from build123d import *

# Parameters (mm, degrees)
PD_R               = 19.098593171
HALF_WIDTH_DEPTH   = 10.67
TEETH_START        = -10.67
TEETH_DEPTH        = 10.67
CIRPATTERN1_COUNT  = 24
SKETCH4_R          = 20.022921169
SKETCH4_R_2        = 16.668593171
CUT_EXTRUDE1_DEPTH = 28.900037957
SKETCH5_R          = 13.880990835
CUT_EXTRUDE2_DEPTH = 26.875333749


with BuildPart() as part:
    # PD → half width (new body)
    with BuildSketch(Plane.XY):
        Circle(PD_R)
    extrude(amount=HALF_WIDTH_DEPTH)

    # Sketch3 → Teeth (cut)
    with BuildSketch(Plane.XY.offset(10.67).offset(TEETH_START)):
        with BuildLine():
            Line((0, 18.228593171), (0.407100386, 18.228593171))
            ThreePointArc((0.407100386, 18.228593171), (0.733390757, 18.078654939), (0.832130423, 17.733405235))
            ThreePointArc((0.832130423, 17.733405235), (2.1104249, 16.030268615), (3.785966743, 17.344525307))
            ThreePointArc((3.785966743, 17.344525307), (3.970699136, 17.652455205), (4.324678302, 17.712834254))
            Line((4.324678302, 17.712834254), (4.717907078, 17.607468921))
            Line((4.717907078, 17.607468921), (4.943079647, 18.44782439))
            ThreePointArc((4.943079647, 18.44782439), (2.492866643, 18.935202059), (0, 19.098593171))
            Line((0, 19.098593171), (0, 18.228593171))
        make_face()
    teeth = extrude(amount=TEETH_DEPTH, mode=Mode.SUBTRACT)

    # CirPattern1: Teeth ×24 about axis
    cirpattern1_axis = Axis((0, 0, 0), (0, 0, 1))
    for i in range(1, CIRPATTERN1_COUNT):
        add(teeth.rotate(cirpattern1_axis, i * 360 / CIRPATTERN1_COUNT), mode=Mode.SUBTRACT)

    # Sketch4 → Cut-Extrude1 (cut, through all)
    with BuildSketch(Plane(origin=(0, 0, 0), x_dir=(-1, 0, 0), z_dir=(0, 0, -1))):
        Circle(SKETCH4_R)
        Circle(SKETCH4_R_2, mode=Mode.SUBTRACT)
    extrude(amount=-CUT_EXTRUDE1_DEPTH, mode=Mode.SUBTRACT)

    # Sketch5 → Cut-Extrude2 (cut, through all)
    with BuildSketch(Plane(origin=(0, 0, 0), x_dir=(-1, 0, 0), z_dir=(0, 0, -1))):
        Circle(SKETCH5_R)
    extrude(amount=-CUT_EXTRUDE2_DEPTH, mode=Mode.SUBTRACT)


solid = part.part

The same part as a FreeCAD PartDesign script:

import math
import FreeCAD as App
import Part
import Sketcher

V = App.Vector
Q = App.Units.Quantity

doc = App.newDocument("Part")
body = doc.addObject("PartDesign::Body", "Body")

# Sketch on XY plane
sketch1 = body.newObject("Sketcher::SketchObject", "Sketch")
sketch1.AttachmentSupport = (doc.getObject("XY_Plane"), [""])
sketch1.MapMode = "FlatFace"
sketch1.addGeometry(Part.Circle(V(0, 0, 0), V(0, 0, 1), 19), False)
sketch1.addConstraint([
    Sketcher.Constraint("Coincident", 0, 3, -1, 1),
    Sketcher.Constraint("Diameter", 0, 38.197186),
])
pad1 = body.newObject("PartDesign::Pad", "Pad")
pad1.Profile = sketch1
pad1.Length = 10.67

# Sketch on XY plane
sketch2 = body.newObject("Sketcher::SketchObject", "Sketch001")
sketch2.AttachmentSupport = (doc.getObject("XY_Plane"), [""])
sketch2.MapMode = "FlatFace"
sketch2.addGeometry([
    Part.LineSegment(V(0, 18.23, 0), V(0.41, 18.23, 0)),  # 0
    Part.ArcOfCircle(Part.Circle(V(0.41, 17.8, 0), V(0, 0, 1), 0.43), math.radians(-9), math.radians(90)),  # 1
    Part.ArcOfCircle(Part.Circle(V(2.3, 17.51, 0), V(0, 0, 1), 1.49), math.radians(171), math.radians(354)),  # 2
    Part.ArcOfCircle(Part.Circle(V(4.21, 17.3, 0), V(0, 0, 1), 0.43), math.radians(75), math.radians(174)),  # 3
    Part.LineSegment(V(4.32, 17.71, 0), V(4.72, 17.61, 0)),  # 4
    Part.LineSegment(V(4.72, 17.61, 0), V(4.94, 18.45, 0)),  # 5
    Part.ArcOfCircle(Part.Circle(V(0, 0, 0), V(0, 0, 1), 19.1), math.radians(75), math.radians(90)),  # 6
    Part.LineSegment(V(0, 19.1, 0), V(0, 18.23, 0)),  # 7
], False)
sketch2.addConstraint([
    Sketcher.Constraint("Tangent", 0, 2, 1, 2),
    Sketcher.Constraint("Tangent", 1, 1, 2, 1),
    Sketcher.Constraint("Tangent", 2, 2, 3, 2),
    Sketcher.Constraint("Tangent", 3, 1, 4, 1),
    Sketcher.Constraint("Coincident", 4, 2, 5, 1),
    Sketcher.Constraint("Coincident", 5, 2, 6, 1),
    Sketcher.Constraint("Coincident", 6, 2, 7, 1),
    Sketcher.Constraint("Coincident", 7, 2, 0, 1),
    Sketcher.Constraint("Horizontal", 0),
    Sketcher.Constraint("Vertical", 7),
    Sketcher.Constraint("Coincident", 6, 3, -1, 1),
    Sketcher.Constraint("Equal", 1, 3),
    Sketcher.Constraint("PointOnObject", 6, 2, -2),
    Sketcher.Constraint("Perpendicular", 4, 5),
    Sketcher.Constraint("Angle", 4, Q("-15 deg")),
    Sketcher.Constraint("Radius", 1, 0.43),
    Sketcher.Constraint("Radius", 2, 1.49),
    Sketcher.Constraint("DistanceY", 7, 2, 7, 1, 0.87),
    Sketcher.Constraint("Distance", 5, 0.87),
    Sketcher.Constraint("DistanceX", 0, 1, 0, 2, 0.4071),
    Sketcher.Constraint("Radius", 6, 19.098593),
    Sketcher.Constraint("DistanceX", 2, 3, 4, 2, 2.412998),
    Sketcher.Constraint("Distance", 4, 0.4071),
])
pocket1 = body.newObject("PartDesign::Pocket", "Pocket")
pocket1.Profile = sketch2
pocket1.Length = 10.67
pocket1.Reversed = True
doc.recompute()

polarpattern = body.newObject("PartDesign::PolarPattern", "PolarPattern")
polarpattern.Originals = [pocket1]
polarpattern.Axis = (doc.getObject("Z_Axis"), [""])
polarpattern.Angle = 360
polarpattern.Occurrences = 24
body.Tip = polarpattern

# Sketch on XY plane
sketch3 = body.newObject("Sketcher::SketchObject", "Sketch002")
sketch3.AttachmentSupport = (doc.getObject("XY_Plane"), [""])
sketch3.MapMode = "FlatFace"
sketch3.addGeometry([
    Part.Circle(V(0, 0, 0), V(0, 0, 1), 20),
    Part.Circle(V(0, 0, 0), V(0, 0, 1), 17),
], False)
sketch3.addConstraint([
    Sketcher.Constraint("Coincident", 0, 3, -1, 1),
    Sketcher.Constraint("Coincident", 1, 3, -1, 1),
    Sketcher.Constraint("Diameter", 0, 40.045842),
    Sketcher.Constraint("Diameter", 1, 33.337186),
])
pocket2 = body.newObject("PartDesign::Pocket", "Pocket001")
pocket2.Profile = sketch3
pocket2.Type = "ThroughAll"
pocket2.Reversed = True

# Sketch on XY plane
sketch4 = body.newObject("Sketcher::SketchObject", "Sketch003")
sketch4.AttachmentSupport = (doc.getObject("XY_Plane"), [""])
sketch4.MapMode = "FlatFace"
sketch4.addGeometry(Part.Circle(V(0, 0, 0), V(0, 0, 1), 14), False)
sketch4.addConstraint([
    Sketcher.Constraint("Coincident", 0, 3, -1, 1),
    Sketcher.Constraint("Diameter", 0, 27.761982),
])
pocket3 = body.newObject("PartDesign::Pocket", "Pocket002")
pocket3.Profile = sketch4
pocket3.Type = "ThroughAll"
pocket3.Reversed = True

doc.recompute()
